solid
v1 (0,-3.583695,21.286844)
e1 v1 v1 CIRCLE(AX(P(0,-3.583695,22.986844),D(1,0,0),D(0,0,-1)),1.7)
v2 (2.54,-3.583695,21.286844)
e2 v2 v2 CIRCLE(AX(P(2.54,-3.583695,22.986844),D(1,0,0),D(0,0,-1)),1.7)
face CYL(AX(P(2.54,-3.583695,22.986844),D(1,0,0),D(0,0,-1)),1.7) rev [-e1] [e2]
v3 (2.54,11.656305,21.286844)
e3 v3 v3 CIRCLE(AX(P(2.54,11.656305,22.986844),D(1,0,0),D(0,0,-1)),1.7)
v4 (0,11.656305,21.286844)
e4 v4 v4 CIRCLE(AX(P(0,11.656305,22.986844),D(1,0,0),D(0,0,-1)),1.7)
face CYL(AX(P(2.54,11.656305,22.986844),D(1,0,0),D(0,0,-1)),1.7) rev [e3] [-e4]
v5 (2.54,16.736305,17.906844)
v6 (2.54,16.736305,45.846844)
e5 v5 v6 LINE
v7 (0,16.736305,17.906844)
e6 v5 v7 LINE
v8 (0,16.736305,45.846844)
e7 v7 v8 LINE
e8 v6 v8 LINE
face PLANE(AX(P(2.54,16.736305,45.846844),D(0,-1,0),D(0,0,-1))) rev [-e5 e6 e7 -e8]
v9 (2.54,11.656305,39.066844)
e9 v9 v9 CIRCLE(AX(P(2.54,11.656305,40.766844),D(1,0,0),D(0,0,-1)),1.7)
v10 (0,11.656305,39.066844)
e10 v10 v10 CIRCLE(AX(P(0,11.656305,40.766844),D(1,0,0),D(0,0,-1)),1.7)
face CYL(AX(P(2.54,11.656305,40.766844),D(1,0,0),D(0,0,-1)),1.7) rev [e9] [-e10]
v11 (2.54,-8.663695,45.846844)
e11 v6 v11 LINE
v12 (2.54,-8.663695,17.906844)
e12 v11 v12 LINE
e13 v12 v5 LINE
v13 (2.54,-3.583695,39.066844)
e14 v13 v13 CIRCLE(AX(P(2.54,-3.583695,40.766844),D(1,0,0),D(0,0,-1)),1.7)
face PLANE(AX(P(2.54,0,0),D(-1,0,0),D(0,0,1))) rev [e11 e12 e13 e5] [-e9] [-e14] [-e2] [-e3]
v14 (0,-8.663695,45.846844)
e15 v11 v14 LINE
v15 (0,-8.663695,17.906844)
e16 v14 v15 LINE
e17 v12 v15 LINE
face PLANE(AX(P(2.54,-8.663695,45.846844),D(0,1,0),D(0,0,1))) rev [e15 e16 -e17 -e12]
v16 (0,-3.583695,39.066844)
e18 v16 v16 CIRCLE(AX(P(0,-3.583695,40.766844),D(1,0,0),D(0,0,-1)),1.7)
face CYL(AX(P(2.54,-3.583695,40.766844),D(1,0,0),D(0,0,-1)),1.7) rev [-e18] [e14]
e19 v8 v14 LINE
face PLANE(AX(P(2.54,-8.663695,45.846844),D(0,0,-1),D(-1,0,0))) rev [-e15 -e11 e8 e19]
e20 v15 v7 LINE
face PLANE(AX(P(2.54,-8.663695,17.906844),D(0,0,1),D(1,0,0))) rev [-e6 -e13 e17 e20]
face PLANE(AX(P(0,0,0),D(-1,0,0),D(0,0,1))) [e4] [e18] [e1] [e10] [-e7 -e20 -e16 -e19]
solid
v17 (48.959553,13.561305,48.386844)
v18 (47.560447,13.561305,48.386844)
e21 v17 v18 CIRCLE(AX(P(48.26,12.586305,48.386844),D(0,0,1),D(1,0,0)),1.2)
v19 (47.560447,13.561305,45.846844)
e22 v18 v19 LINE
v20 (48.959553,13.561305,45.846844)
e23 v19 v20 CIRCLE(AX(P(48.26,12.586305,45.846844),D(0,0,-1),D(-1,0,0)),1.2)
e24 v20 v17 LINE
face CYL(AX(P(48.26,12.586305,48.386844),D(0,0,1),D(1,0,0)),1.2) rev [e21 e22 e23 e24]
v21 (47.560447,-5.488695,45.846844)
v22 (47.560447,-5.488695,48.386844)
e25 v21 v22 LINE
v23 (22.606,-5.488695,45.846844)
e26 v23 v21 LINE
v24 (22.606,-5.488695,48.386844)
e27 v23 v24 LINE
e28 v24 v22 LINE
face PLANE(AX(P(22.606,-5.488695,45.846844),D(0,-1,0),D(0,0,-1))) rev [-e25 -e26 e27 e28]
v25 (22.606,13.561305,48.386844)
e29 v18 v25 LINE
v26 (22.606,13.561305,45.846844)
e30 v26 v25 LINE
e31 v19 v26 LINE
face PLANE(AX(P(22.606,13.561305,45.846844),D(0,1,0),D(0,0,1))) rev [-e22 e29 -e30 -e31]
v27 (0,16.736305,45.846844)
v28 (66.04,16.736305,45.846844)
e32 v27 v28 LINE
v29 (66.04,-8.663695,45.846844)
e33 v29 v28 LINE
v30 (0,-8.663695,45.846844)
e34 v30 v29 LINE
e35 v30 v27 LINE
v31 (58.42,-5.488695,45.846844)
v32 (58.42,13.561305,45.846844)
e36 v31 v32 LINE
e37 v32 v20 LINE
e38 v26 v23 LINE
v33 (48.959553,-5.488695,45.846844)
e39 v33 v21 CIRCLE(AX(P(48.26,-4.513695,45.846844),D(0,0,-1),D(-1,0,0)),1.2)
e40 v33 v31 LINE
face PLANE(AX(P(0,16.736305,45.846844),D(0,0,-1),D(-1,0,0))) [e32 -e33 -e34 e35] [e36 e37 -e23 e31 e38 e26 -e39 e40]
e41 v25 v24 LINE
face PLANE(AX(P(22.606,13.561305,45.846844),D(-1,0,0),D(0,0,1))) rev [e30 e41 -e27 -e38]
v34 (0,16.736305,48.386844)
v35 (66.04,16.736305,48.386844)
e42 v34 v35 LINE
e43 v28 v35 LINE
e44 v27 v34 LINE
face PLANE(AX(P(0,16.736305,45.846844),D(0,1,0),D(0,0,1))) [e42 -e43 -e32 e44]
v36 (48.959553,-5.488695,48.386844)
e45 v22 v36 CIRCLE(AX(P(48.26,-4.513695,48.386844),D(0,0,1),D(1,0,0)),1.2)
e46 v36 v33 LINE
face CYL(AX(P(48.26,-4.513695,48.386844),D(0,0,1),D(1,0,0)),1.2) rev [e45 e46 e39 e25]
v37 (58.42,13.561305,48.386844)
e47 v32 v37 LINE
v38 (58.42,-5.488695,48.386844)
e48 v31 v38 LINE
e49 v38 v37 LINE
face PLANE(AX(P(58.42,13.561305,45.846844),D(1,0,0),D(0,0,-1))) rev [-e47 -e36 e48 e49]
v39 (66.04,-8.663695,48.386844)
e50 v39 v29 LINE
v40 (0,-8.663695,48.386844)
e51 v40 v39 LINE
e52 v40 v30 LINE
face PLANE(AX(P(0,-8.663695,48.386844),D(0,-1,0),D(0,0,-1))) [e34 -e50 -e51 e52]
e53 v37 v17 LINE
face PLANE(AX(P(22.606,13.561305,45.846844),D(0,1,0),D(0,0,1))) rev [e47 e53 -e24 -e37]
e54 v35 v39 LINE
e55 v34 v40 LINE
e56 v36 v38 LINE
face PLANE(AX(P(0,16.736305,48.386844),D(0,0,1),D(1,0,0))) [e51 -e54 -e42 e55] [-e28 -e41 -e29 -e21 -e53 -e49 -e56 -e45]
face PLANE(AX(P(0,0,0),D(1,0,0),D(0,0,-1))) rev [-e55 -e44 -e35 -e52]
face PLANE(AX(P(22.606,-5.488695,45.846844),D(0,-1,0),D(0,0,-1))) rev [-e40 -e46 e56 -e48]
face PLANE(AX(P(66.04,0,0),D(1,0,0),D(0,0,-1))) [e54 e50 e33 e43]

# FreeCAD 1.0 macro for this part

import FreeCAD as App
import Part
import Sketcher
from FreeCAD import Vector
Q = App.Units.Quantity


def add_polygon(sketch, points):
    """Adds a closed chain of lines whose ends are joined by coincident constraints."""
    first, n = sketch.GeometryCount, len(points)
    for a, b in zip(points, points[1:] + points[:1]):
        sketch.addGeometry(Part.LineSegment(App.Vector(*a, 0), App.Vector(*b, 0)), False)
    for i in range(n):
        sketch.addConstraint(Sketcher.Constraint("Coincident", first + i, 2, first + (i + 1) % n, 1))

doc = App.newDocument("Part")
body = doc.addObject("PartDesign::Body", "Body")

sketch1 = doc.addObject("Sketcher::SketchObject", "Sketch")
body.addObject(sketch1)
sketch1.AttachmentSupport = (doc.YZ_Plane, [""])
sketch1.MapMode = "FlatFace"
add_polygon(sketch1, [(17, 46), (-9, 46), (-9, 18), (17, 18)])
sketch1.addConstraint(Sketcher.Constraint("Horizontal", 0))
sketch1.addConstraint(Sketcher.Constraint("Vertical", 1))
sketch1.addConstraint(Sketcher.Constraint("Horizontal", 2))
sketch1.addConstraint(Sketcher.Constraint("Vertical", 3))
sketch1.addConstraint(Sketcher.Constraint("DistanceX", 0, 2, 0, 1, Q("1 in")))
sketch1.addConstraint(Sketcher.Constraint("DistanceY", 1, 2, 1, 1, Q("1.1 in")))
sketch1.addConstraint(Sketcher.Constraint("DistanceX", 0, 2, -1, 1, 8.663695))
sketch1.addConstraint(Sketcher.Constraint("DistanceY", -1, 1, 0, 2, 45.846844))
pad1 = doc.addObject("PartDesign::Pad", "Pad")
body.addObject(pad1)
pad1.Profile = sketch1
pad1.Length = Q("0.1 in")

sketch2 = doc.addObject("Sketcher::SketchObject", "Sketch001")
body.addObject(sketch2)
sketch2.AttachmentSupport = (doc.YZ_Plane, [""])
sketch2.MapMode = "FlatFace"
sketch2.AttachmentOffset = App.Placement(Vector(0, 0, 0.1 * 25.4), App.Rotation())
sketch2.addGeometry(Part.Circle(Vector(11.7, 40.8, 0), Vector(0, 0, 1), 1.7), False)
sketch2.addGeometry(Part.Circle(Vector(11.7, 23, 0), Vector(0, 0, 1), 1.7), False)
sketch2.addGeometry(Part.Circle(Vector(-3.6, 23, 0), Vector(0, 0, 1), 1.7), False)
sketch2.addGeometry(Part.Circle(Vector(-3.6, 40.8, 0), Vector(0, 0, 1), 1.7), False)
sketch2.addConstraint(Sketcher.Constraint("Equal", 0, 1))
sketch2.addConstraint(Sketcher.Constraint("Equal", 1, 2))
sketch2.addConstraint(Sketcher.Constraint("Equal", 2, 3))
sketch2.addConstraint(Sketcher.Constraint("Horizontal", 1, 3, 2, 3))
sketch2.addConstraint(Sketcher.Constraint("Horizontal", 0, 3, 3, 3))
sketch2.addConstraint(Sketcher.Constraint("Vertical", 0, 3, 1, 3))
sketch2.addConstraint(Sketcher.Constraint("Vertical", 2, 3, 3, 3))
sketch2.addConstraint(Sketcher.Constraint("DistanceY", 1, 3, 0, 3, Q("0.7 in")))
sketch2.addConstraint(Sketcher.Constraint("DistanceX", 2, 3, 1, 3, Q("0.6 in")))
sketch2.addConstraint(Sketcher.Constraint("Diameter", 0, 3.4))
sketch2.addConstraint(Sketcher.Constraint("DistanceX", -1, 1, 0, 3, 11.656305))
sketch2.addConstraint(Sketcher.Constraint("DistanceY", -1, 1, 0, 3, 40.766844))
doc.recompute()
hole = doc.addObject("PartDesign::Hole", "Hole")
body.addObject(hole)
hole.Profile = sketch2
hole.ThreadType = "None"
hole.Diameter = 3.4
hole.DepthType = "ThroughAll"
body2 = doc.addObject("PartDesign::Body", "Body001")

sketch3 = doc.addObject("Sketcher::SketchObject", "Sketch002")
body2.addObject(sketch3)
sketch3.AttachmentSupport = (doc.getObject("YZ_Plane001"), [""])
sketch3.MapMode = "FlatFace"
sketch3.AttachmentOffset = App.Placement(Vector(0, 0, 0.1 * 25.4), App.Rotation())
add_polygon(sketch3, [(16.7, 48.4), (-8.7, 48.4), (-8.7, 45.8), (16.7, 45.8)])
sketch3.addConstraint(Sketcher.Constraint("Horizontal", 0))
sketch3.addConstraint(Sketcher.Constraint("Vertical", 1))
sketch3.addConstraint(Sketcher.Constraint("Horizontal", 2))
sketch3.addConstraint(Sketcher.Constraint("Vertical", 3))
sketch3.addConstraint(Sketcher.Constraint("DistanceX", 0, 2, 0, 1, Q("1 in")))
sketch3.addConstraint(Sketcher.Constraint("DistanceY", 1, 2, 1, 1, Q("0.1 in")))
sketch3.addConstraint(Sketcher.Constraint("DistanceX", 0, 2, -1, 1, 8.663695))
sketch3.addConstraint(Sketcher.Constraint("DistanceY", -1, 1, 0, 2, 48.386844))
pad2 = doc.addObject("PartDesign::Pad", "Pad001")
body2.addObject(pad2)
pad2.Profile = sketch3
pad2.Type = "TwoLengths"
pad2.Length = Q("2.5 in")
pad2.Length2 = Q("0.1 in")

sketch4 = doc.addObject("Sketcher::SketchObject", "Sketch003")
body2.addObject(sketch4)
sketch4.AttachmentSupport = (doc.getObject("YZ_Plane001"), [""])
sketch4.MapMode = "FlatFace"
sketch4.AttachmentOffset = App.Placement(Vector(0, 0, 1.9 * 25.4), App.Rotation())
add_polygon(sketch4, [(12.6, 17.9), (12.6, 48.4), (11.4, 48.4), (11.4, 17.9)])
sketch4.addGeometry(Part.LineSegment(Vector(12.6, 48.4, 0), Vector(12.6, 17.9, 0)), True)
sketch4.addConstraint(Sketcher.Constraint("Vertical", 0))
sketch4.addConstraint(Sketcher.Constraint("Horizontal", 1))
sketch4.addConstraint(Sketcher.Constraint("Vertical", 2))
sketch4.addConstraint(Sketcher.Constraint("Horizontal", 3))
sketch4.addConstraint(Sketcher.Constraint("Vertical", 4))
sketch4.addConstraint(Sketcher.Constraint("Coincident", 4, 1, 0, 2))
sketch4.addConstraint(Sketcher.Constraint("Horizontal", 2, 2, 4, 2))
sketch4.addConstraint(Sketcher.Constraint("DistanceY", 0, 1, 0, 2, Q("1.2 in")))
sketch4.addConstraint(Sketcher.Constraint("DistanceX", 1, 2, 1, 1, 1.2))
sketch4.addConstraint(Sketcher.Constraint("DistanceX", -1, 1, 0, 2, 12.586305))
sketch4.addConstraint(Sketcher.Constraint("DistanceY", -1, 1, 0, 2, 48.386844))
groove = doc.addObject("PartDesign::Groove", "Groove")
body2.addObject(groove)
groove.Profile = sketch4
groove.ReferenceAxis = (sketch4, ["Axis0"])
groove.Angle = 360
doc.recompute()

linearpattern = doc.addObject("PartDesign::LinearPattern", "LinearPattern")
body2.addObject(linearpattern)
linearpattern.Originals = [groove]
linearpattern.Direction = (doc.getObject("Y_Axis001"), [""])
linearpattern.Mode = "offset"
linearpattern.Offset = 17.1
linearpattern.Occurrences = 2
linearpattern.Reversed = True
body2.Tip = linearpattern

sketch5 = doc.addObject("Sketcher::SketchObject", "Sketch004")
body2.addObject(sketch5)
sketch5.AttachmentSupport = (doc.getObject("XY_Plane001"), [""])
sketch5.MapMode = "FlatFace"
sketch5.AttachmentOffset = App.Placement(Vector(0, 0, 48.386844), App.Rotation())
add_polygon(sketch5, [(23, 14), (23, -5), (58, -5), (58, 14)])
sketch5.addConstraint(Sketcher.Constraint("Vertical", 0))
sketch5.addConstraint(Sketcher.Constraint("Horizontal", 1))
sketch5.addConstraint(Sketcher.Constraint("Vertical", 2))
sketch5.addConstraint(Sketcher.Constraint("Horizontal", 3))
sketch5.addConstraint(Sketcher.Constraint("DistanceX", 1, 1, 1, 2, Q("1.41 in")))
sketch5.addConstraint(Sketcher.Constraint("DistanceY", 0, 2, 0, 1, Q("0.75 in")))
sketch5.addConstraint(Sketcher.Constraint("DistanceX", -1, 1, 1, 2, Q("2.3 in")))
sketch5.addConstraint(Sketcher.Constraint("DistanceY", 0, 2, -1, 1, 5.488695))
pocket1 = doc.addObject("PartDesign::Pocket", "Pocket")
body2.addObject(pocket1)
pocket1.Profile = sketch5
pocket1.Length = Q("0.1 in")

doc.recompute()
